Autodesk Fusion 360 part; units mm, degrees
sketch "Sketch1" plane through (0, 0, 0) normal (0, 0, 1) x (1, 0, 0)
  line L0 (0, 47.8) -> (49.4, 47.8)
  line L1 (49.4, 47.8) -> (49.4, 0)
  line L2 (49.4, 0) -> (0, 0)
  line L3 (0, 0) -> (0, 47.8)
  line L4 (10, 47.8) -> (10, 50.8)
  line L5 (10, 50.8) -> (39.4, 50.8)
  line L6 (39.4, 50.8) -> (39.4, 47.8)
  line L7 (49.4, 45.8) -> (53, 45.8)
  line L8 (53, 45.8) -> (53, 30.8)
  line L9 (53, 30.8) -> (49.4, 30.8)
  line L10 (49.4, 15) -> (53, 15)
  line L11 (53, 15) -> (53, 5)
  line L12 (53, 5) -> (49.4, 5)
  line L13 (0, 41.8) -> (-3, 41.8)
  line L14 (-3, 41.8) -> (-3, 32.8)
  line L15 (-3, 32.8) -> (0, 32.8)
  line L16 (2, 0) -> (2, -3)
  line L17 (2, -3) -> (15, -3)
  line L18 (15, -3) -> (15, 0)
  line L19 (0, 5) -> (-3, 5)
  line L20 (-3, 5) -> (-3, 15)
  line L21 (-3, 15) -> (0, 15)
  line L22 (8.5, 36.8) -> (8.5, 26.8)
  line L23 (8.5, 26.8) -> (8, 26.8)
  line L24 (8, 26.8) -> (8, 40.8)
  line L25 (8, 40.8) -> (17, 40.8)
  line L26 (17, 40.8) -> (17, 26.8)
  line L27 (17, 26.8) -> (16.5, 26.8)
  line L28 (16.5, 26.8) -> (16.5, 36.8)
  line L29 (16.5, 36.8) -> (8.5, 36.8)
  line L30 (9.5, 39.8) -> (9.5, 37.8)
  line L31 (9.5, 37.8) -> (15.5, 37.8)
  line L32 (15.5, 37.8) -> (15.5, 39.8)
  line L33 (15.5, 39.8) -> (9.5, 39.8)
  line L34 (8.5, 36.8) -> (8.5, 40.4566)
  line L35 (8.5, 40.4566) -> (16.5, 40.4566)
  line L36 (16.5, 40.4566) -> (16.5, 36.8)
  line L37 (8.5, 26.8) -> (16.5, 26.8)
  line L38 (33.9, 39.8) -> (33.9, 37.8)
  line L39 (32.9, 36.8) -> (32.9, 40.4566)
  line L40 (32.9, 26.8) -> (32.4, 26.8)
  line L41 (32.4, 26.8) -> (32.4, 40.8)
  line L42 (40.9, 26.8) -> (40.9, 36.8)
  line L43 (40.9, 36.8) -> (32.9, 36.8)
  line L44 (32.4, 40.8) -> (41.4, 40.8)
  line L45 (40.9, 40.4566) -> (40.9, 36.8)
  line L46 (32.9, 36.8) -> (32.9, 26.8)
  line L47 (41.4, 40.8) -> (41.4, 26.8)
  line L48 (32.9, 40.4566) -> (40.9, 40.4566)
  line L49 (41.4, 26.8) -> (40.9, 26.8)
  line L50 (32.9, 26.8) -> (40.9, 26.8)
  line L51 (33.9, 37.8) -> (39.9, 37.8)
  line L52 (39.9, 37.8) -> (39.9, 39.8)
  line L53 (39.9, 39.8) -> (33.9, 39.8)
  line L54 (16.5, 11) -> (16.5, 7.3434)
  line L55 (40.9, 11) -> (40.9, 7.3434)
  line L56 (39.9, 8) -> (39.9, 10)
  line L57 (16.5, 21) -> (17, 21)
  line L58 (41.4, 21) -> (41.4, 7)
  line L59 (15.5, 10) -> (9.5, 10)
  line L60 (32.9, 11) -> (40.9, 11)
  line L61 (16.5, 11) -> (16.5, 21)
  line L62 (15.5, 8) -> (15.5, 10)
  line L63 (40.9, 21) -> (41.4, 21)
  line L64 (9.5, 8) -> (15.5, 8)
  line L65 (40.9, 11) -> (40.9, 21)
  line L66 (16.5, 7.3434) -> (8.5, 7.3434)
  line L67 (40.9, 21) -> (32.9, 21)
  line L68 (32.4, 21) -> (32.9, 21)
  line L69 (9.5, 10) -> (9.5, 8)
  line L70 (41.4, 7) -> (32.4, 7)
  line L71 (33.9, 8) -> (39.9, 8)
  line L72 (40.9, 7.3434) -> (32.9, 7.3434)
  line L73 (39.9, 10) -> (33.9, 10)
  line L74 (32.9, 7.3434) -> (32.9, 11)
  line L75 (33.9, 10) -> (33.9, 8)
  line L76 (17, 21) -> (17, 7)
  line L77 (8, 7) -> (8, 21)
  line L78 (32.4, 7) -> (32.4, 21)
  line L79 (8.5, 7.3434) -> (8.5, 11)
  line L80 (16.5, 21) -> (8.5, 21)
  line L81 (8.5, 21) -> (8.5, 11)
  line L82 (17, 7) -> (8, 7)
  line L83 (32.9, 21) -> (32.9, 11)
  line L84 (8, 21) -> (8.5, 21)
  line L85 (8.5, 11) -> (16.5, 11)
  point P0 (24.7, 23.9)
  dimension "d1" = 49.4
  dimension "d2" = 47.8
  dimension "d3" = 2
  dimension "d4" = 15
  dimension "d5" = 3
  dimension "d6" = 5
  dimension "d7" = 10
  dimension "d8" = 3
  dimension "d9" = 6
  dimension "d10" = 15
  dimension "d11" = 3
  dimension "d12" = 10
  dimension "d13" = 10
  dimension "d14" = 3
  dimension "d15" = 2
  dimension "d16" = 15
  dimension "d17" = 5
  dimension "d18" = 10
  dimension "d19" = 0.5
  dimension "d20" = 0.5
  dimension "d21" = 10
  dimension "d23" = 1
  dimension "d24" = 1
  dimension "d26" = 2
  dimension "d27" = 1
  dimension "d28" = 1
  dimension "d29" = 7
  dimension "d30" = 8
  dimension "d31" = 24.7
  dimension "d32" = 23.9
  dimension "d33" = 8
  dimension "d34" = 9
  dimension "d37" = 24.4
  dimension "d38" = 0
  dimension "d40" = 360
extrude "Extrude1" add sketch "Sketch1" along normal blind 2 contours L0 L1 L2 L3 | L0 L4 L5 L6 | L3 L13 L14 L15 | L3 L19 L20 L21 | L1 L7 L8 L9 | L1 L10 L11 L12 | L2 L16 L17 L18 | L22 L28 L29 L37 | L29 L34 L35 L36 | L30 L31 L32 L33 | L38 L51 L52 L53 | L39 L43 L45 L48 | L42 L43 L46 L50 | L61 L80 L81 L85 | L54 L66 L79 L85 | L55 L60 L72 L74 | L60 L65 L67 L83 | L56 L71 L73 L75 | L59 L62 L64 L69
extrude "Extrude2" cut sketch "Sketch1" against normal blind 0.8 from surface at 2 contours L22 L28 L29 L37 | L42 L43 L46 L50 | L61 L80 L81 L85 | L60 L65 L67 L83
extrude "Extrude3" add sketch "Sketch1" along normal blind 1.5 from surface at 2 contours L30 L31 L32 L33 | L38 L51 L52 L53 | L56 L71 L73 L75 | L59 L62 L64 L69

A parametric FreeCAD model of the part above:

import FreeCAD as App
import Part
import Sketcher

V = App.Vector

doc = App.newDocument("Part")
body = doc.addObject("PartDesign::Body", "Body")

# Sketch on XY plane
sketch1 = body.newObject("Sketcher::SketchObject", "Sketch")
sketch1.AttachmentSupport = (doc.getObject("XY_Plane"), [""])
sketch1.MapMode = "FlatFace"
sketch1.addGeometry([
    Part.LineSegment(V(10, 47.8, 0), V(0, 47.8, 0)),  # 0
    Part.LineSegment(V(0, 47.8, 0), V(0, 41.8, 0)),  # 1
    Part.LineSegment(V(0, 41.8, 0), V(-3, 41.8, 0)),  # 2
    Part.LineSegment(V(-3, 41.8, 0), V(-3, 32.8, 0)),  # 3
    Part.LineSegment(V(-3, 32.8, 0), V(0, 32.8, 0)),  # 4
    Part.LineSegment(V(0, 32.8, 0), V(0, 15, 0)),  # 5
    Part.LineSegment(V(0, 15, 0), V(-3, 15, 0)),  # 6
    Part.LineSegment(V(-3, 15, 0), V(-3, 5, 0)),  # 7
    Part.LineSegment(V(-3, 5, 0), V(0, 5, 0)),  # 8
    Part.LineSegment(V(0, 5, 0), V(0, 0, 0)),  # 9
    Part.LineSegment(V(0, 0, 0), V(2, 0, 0)),  # 10
    Part.LineSegment(V(2, 0, 0), V(2, -3, 0)),  # 11
    Part.LineSegment(V(2, -3, 0), V(15, -3, 0)),  # 12
    Part.LineSegment(V(15, -3, 0), V(15, 0, 0)),  # 13
    Part.LineSegment(V(15, 0, 0), V(49.4, 0, 0)),  # 14
    Part.LineSegment(V(49.4, 0, 0), V(49.4, 5, 0)),  # 15
    Part.LineSegment(V(49.4, 5, 0), V(53, 5, 0)),  # 16
    Part.LineSegment(V(53, 5, 0), V(53, 15, 0)),  # 17
    Part.LineSegment(V(53, 15, 0), V(49.4, 15, 0)),  # 18
    Part.LineSegment(V(49.4, 15, 0), V(49.4, 30.8, 0)),  # 19
    Part.LineSegment(V(49.4, 30.8, 0), V(53, 30.8, 0)),  # 20
    Part.LineSegment(V(53, 30.8, 0), V(53, 45.8, 0)),  # 21
    Part.LineSegment(V(53, 45.8, 0), V(49.4, 45.8, 0)),  # 22
    Part.LineSegment(V(49.4, 45.8, 0), V(49.4, 47.8, 0)),  # 23
    Part.LineSegment(V(49.4, 47.8, 0), V(39.4, 47.8, 0)),  # 24
    Part.LineSegment(V(39.4, 47.8, 0), V(39.4, 50.8, 0)),  # 25
    Part.LineSegment(V(39.4, 50.8, 0), V(10, 50.8, 0)),  # 26
    Part.LineSegment(V(10, 50.8, 0), V(10, 47.8, 0)),  # 27
    Part.LineSegment(V(8, 21, 0), V(8.5, 21, 0)),  # 28
    Part.LineSegment(V(8.5, 21, 0), V(8.5, 7.3, 0)),  # 29
    Part.LineSegment(V(8.5, 7.3, 0), V(16.5, 7.3, 0)),  # 30
    Part.LineSegment(V(16.5, 7.3, 0), V(16.5, 21, 0)),  # 31
    Part.LineSegment(V(16.5, 21, 0), V(17, 21, 0)),  # 32
    Part.LineSegment(V(17, 21, 0), V(17, 7, 0)),  # 33
    Part.LineSegment(V(17, 7, 0), V(8, 7, 0)),  # 34
    Part.LineSegment(V(8, 7, 0), V(8, 21, 0)),  # 35
    Part.LineSegment(V(32.4, 21, 0), V(32.9, 21, 0)),  # 36
    Part.LineSegment(V(32.9, 21, 0), V(32.9, 7.3, 0)),  # 37
    Part.LineSegment(V(32.9, 7.3, 0), V(40.9, 7.3, 0)),  # 38
    Part.LineSegment(V(40.9, 7.3, 0), V(40.9, 21, 0)),  # 39
    Part.LineSegment(V(40.9, 21, 0), V(41.4, 21, 0)),  # 40
    Part.LineSegment(V(41.4, 21, 0), V(41.4, 7, 0)),  # 41
    Part.LineSegment(V(41.4, 7, 0), V(32.4, 7, 0)),  # 42
    Part.LineSegment(V(32.4, 7, 0), V(32.4, 21, 0)),  # 43
    Part.LineSegment(V(17, 26.8, 0), V(16.5, 26.8, 0)),  # 44
    Part.LineSegment(V(16.5, 26.8, 0), V(16.5, 40.5, 0)),  # 45
    Part.LineSegment(V(16.5, 40.5, 0), V(8.5, 40.5, 0)),  # 46
    Part.LineSegment(V(8.5, 40.5, 0), V(8.5, 26.8, 0)),  # 47
    Part.LineSegment(V(8.5, 26.8, 0), V(8, 26.8, 0)),  # 48
    Part.LineSegment(V(8, 26.8, 0), V(8, 40.8, 0)),  # 49
    Part.LineSegment(V(8, 40.8, 0), V(17, 40.8, 0)),  # 50
    Part.LineSegment(V(17, 40.8, 0), V(17, 26.8, 0)),  # 51
    Part.LineSegment(V(41.4, 26.8, 0), V(40.9, 26.8, 0)),  # 52
    Part.LineSegment(V(40.9, 26.8, 0), V(40.9, 40.5, 0)),  # 53
    Part.LineSegment(V(40.9, 40.5, 0), V(32.9, 40.5, 0)),  # 54
    Part.LineSegment(V(32.9, 40.5, 0), V(32.9, 26.8, 0)),  # 55
    Part.LineSegment(V(32.9, 26.8, 0), V(32.4, 26.8, 0)),  # 56
    Part.LineSegment(V(32.4, 26.8, 0), V(32.4, 40.8, 0)),  # 57
    Part.LineSegment(V(32.4, 40.8, 0), V(41.4, 40.8, 0)),  # 58
    Part.LineSegment(V(41.4, 40.8, 0), V(41.4, 26.8, 0)),  # 59
], False)
sketch1.addConstraint([
    Sketcher.Constraint("Coincident", 0, 2, 1, 1),
    Sketcher.Constraint("Coincident", 1, 2, 2, 1),
    Sketcher.Constraint("Coincident", 2, 2, 3, 1),
    Sketcher.Constraint("Coincident", 3, 2, 4, 1),
    Sketcher.Constraint("Coincident", 4, 2, 5, 1),
    Sketcher.Constraint("Coincident", 5, 2, 6, 1),
    Sketcher.Constraint("Coincident", 6, 2, 7, 1),
    Sketcher.Constraint("Coincident", 7, 2, 8, 1),
    Sketcher.Constraint("Coincident", 8, 2, 9, 1),
    Sketcher.Constraint("Coincident", 9, 2, 10, 1),
    Sketcher.Constraint("Coincident", 10, 2, 11, 1),
    Sketcher.Constraint("Coincident", 11, 2, 12, 1),
    Sketcher.Constraint("Coincident", 12, 2, 13, 1),
    Sketcher.Constraint("Coincident", 13, 2, 14, 1),
    Sketcher.Constraint("Coincident", 14, 2, 15, 1),
    Sketcher.Constraint("Coincident", 15, 2, 16, 1),
    Sketcher.Constraint("Coincident", 16, 2, 17, 1),
    Sketcher.Constraint("Coincident", 17, 2, 18, 1),
    Sketcher.Constraint("Coincident", 18, 2, 19, 1),
    Sketcher.Constraint("Coincident", 19, 2, 20, 1),
    Sketcher.Constraint("Coincident", 20, 2, 21, 1),
    Sketcher.Constraint("Coincident", 21, 2, 22, 1),
    Sketcher.Constraint("Coincident", 22, 2, 23, 1),
    Sketcher.Constraint("Coincident", 23, 2, 24, 1),
    Sketcher.Constraint("Coincident", 24, 2, 25, 1),
    Sketcher.Constraint("Coincident", 25, 2, 26, 1),
    Sketcher.Constraint("Coincident", 26, 2, 27, 1),
    Sketcher.Constraint("Coincident", 27, 2, 0, 1),
    Sketcher.Constraint("Coincident", 28, 2, 29, 1),
    Sketcher.Constraint("Coincident", 29, 2, 30, 1),
    Sketcher.Constraint("Coincident", 30, 2, 31, 1),
    Sketcher.Constraint("Coincident", 31, 2, 32, 1),
    Sketcher.Constraint("Coincident", 32, 2, 33, 1),
    Sketcher.Constraint("Coincident", 33, 2, 34, 1),
    Sketcher.Constraint("Coincident", 34, 2, 35, 1),
    Sketcher.Constraint("Coincident", 35, 2, 28, 1),
    Sketcher.Constraint("Coincident", 36, 2, 37, 1),
    Sketcher.Constraint("Coincident", 37, 2, 38, 1),
    Sketcher.Constraint("Coincident", 38, 2, 39, 1),
    Sketcher.Constraint("Coincident", 39, 2, 40, 1),
    Sketcher.Constraint("Coincident", 40, 2, 41, 1),
    Sketcher.Constraint("Coincident", 41, 2, 42, 1),
    Sketcher.Constraint("Coincident", 42, 2, 43, 1),
    Sketcher.Constraint("Coincident", 43, 2, 36, 1),
    Sketcher.Constraint("Coincident", 44, 2, 45, 1),
    Sketcher.Constraint("Coincident", 45, 2, 46, 1),
    Sketcher.Constraint("Coincident", 46, 2, 47, 1),
    Sketcher.Constraint("Coincident", 47, 2, 48, 1),
    Sketcher.Constraint("Coincident", 48, 2, 49, 1),
    Sketcher.Constraint("Coincident", 49, 2, 50, 1),
    Sketcher.Constraint("Coincident", 50, 2, 51, 1),
    Sketcher.Constraint("Coincident", 51, 2, 44, 1),
    Sketcher.Constraint("Coincident", 52, 2, 53, 1),
    Sketcher.Constraint("Coincident", 53, 2, 54, 1),
    Sketcher.Constraint("Coincident", 54, 2, 55, 1),
    Sketcher.Constraint("Coincident", 55, 2, 56, 1),
    Sketcher.Constraint("Coincident", 56, 2, 57, 1),
    Sketcher.Constraint("Coincident", 57, 2, 58, 1),
    Sketcher.Constraint("Coincident", 58, 2, 59, 1),
    Sketcher.Constraint("Coincident", 59, 2, 52, 1),
    Sketcher.Constraint("Horizontal", 0),
    Sketcher.Constraint("Vertical", 1),
    Sketcher.Constraint("Horizontal", 2),
    Sketcher.Constraint("Vertical", 3),
    Sketcher.Constraint("Horizontal", 4),
    Sketcher.Constraint("Vertical", 5),
    Sketcher.Constraint("Horizontal", 6),
    Sketcher.Constraint("Vertical", 7),
    Sketcher.Constraint("Horizontal", 8),
    Sketcher.Constraint("Vertical", 9),
    Sketcher.Constraint("Horizontal", 10),
    Sketcher.Constraint("Vertical", 11),
    Sketcher.Constraint("Horizontal", 12),
    Sketcher.Constraint("Vertical", 13),
    Sketcher.Constraint("Horizontal", 14),
    Sketcher.Constraint("Vertical", 15),
    Sketcher.Constraint("Horizontal", 16),
    Sketcher.Constraint("Vertical", 17),
    Sketcher.Constraint("Horizontal", 18),
    Sketcher.Constraint("Vertical", 19),
    Sketcher.Constraint("Horizontal", 20),
    Sketcher.Constraint("Vertical", 21),
    Sketcher.Constraint("Horizontal", 22),
    Sketcher.Constraint("Vertical", 23),
    Sketcher.Constraint("Horizontal", 24),
    Sketcher.Constraint("Vertical", 25),
    Sketcher.Constraint("Horizontal", 26),
    Sketcher.Constraint("Vertical", 27),
    Sketcher.Constraint("Horizontal", 28),
    Sketcher.Constraint("Vertical", 29),
    Sketcher.Constraint("Horizontal", 30),
    Sketcher.Constraint("Vertical", 31),
    Sketcher.Constraint("Horizontal", 32),
    Sketcher.Constraint("Vertical", 33),
    Sketcher.Constraint("Horizontal", 34),
    Sketcher.Constraint("Vertical", 35),
    Sketcher.Constraint("Horizontal", 36),
    Sketcher.Constraint("Vertical", 37),
    Sketcher.Constraint("Horizontal", 38),
    Sketcher.Constraint("Vertical", 39),
    Sketcher.Constraint("Horizontal", 40),
    Sketcher.Constraint("Vertical", 41),
    Sketcher.Constraint("Horizontal", 42),
    Sketcher.Constraint("Vertical", 43),
    Sketcher.Constraint("Horizontal", 44),
    Sketcher.Constraint("Vertical", 45),
    Sketcher.Constraint("Horizontal", 46),
    Sketcher.Constraint("Vertical", 47),
    Sketcher.Constraint("Horizontal", 48),
    Sketcher.Constraint("Vertical", 49),
    Sketcher.Constraint("Horizontal", 50),
    Sketcher.Constraint("Vertical", 51),
    Sketcher.Constraint("Horizontal", 52),
    Sketcher.Constraint("Vertical", 53),
    Sketcher.Constraint("Horizontal", 54),
    Sketcher.Constraint("Vertical", 55),
    Sketcher.Constraint("Horizontal", 56),
    Sketcher.Constraint("Vertical", 57),
    Sketcher.Constraint("Horizontal", 58),
    Sketcher.Constraint("Vertical", 59),
    Sketcher.Constraint("Coincident", 9, 2, -1, 1),
    Sketcher.Constraint("PointOnObject", 0, 2, -2),
    Sketcher.Constraint("PointOnObject", 4, 2, -2),
    Sketcher.Constraint("PointOnObject", 13, 2, -1),
    Sketcher.Constraint("Horizontal", 8, 2, 15, 2),
    Sketcher.Constraint("Horizontal", 6, 2, 17, 2),
    Sketcher.Constraint("Horizontal", 0, 2, 23, 2),
    Sketcher.Constraint("Horizontal", 28, 2, 31, 2),
    Sketcher.Constraint("Horizontal", 35, 2, 36, 2),
    Sketcher.Constraint("Horizontal", 30, 2, 37, 2),
    Sketcher.Constraint("Horizontal", 36, 2, 39, 2),
    Sketcher.Constraint("Horizontal", 34, 2, 41, 2),
    Sketcher.Constraint("Horizontal", 44, 2, 47, 2),
    Sketcher.Constraint("Horizontal", 51, 2, 52, 2),
    Sketcher.Constraint("Horizontal", 46, 2, 53, 2),
    Sketcher.Constraint("Horizontal", 52, 2, 55, 2),
    Sketcher.Constraint("Horizontal", 50, 2, 57, 2),
    Sketcher.Constraint("Vertical", 3, 2, 6, 2),
    Sketcher.Constraint("Vertical", 15, 2, 18, 2),
    Sketcher.Constraint("Vertical", 17, 2, 20, 2),
    Sketcher.Constraint("Vertical", 19, 2, 22, 2),
    Sketcher.Constraint("Vertical", 31, 2, 44, 2),
    Sketcher.Constraint("Vertical", 29, 2, 46, 2),
    Sketcher.Constraint("Vertical", 35, 2, 48, 2),
    Sketcher.Constraint("Vertical", 33, 2, 50, 2),
    Sketcher.Constraint("Vertical", 39, 2, 52, 2),
    Sketcher.Constraint("Vertical", 37, 2, 54, 2),
    Sketcher.Constraint("Vertical", 43, 2, 56, 2),
    Sketcher.Constraint("Vertical", 41, 2, 58, 2),
    Sketcher.Constraint("Equal", 0, 24),
    Sketcher.Constraint("Equal", 28, 32),
    Sketcher.Constraint("Equal", 32, 36),
    Sketcher.Constraint("Equal", 30, 38),
    Sketcher.Constraint("Equal", 36, 40),
    Sketcher.Constraint("Equal", 58, 3),
    Sketcher.Constraint("Equal", 24, 7),
    Sketcher.Constraint("Equal", 8, 11),
    Sketcher.Constraint("Equal", 10, 23),
    Sketcher.Constraint("Equal", 13, 25),
    Sketcher.Constraint("Equal", 39, 45),
    Sketcher.Constraint("Equal", 43, 49),
    Sketcher.Constraint("DistanceX", 0, 2, 0, 1, 10.0),
    Sketcher.Constraint("DistanceX", 2, 2, 2, 1, 3.0),
    Sketcher.Constraint("DistanceX", 10, 1, 10, 2, 2.0),
    Sketcher.Constraint("DistanceX", 30, 1, 30, 2, 8.0),
    Sketcher.Constraint("DistanceX", 34, 2, 34, 1, 9.0),
    Sketcher.Constraint("DistanceY", 1, 2, 1, 1, 6.0),
    Sketcher.Constraint("DistanceY", 9, 2, 9, 1, 5.0),
    Sketcher.Constraint("DistanceY", 21, 1, 21, 2, 15.0),
    Sketcher.Constraint("DistanceX", -1, 1, 12, 2, 15.0),
    Sketcher.Constraint("DistanceY", -1, 1, 33, 2, 7.0),
    Sketcher.Constraint("DistanceX", -1, 1, 34, 2, 8.0),
    Sketcher.Constraint("DistanceY", 5, 2, 28, 2, 6.0),
    Sketcher.Constraint("DistanceX", 40, 2, 18, 2, 8.0),
    Sketcher.Constraint("DistanceY", 48, 2, 4, 2, 6.0),
    Sketcher.Constraint("DistanceY", -1, 1, 0, 2, 47.8),
    Sketcher.Constraint("DistanceX", -1, 1, 14, 2, 49.4),
    Sketcher.Constraint("DistanceX", 16, 1, 16, 2, 3.6),
    Sketcher.Constraint("DistanceY", 29, 2, 29, 1, 13.6566),
])
pad1 = body.newObject("PartDesign::Pad", "Pad")
pad1.Profile = sketch1
pad1.Length = 2

# Sketch on XY plane
sketch2 = body.newObject("Sketcher::SketchObject", "Sketch001")
sketch2.AttachmentSupport = (doc.getObject("XY_Plane"), [""])
sketch2.MapMode = "FlatFace"
sketch2.AttachmentOffset = App.Placement(V(0, 0, 2), App.Rotation())
sketch2.addGeometry([
    Part.LineSegment(V(16, 37, 0), V(8, 37, 0)),  # 0
    Part.LineSegment(V(8, 37, 0), V(8, 27, 0)),  # 1
    Part.LineSegment(V(8, 27, 0), V(16, 27, 0)),  # 2
    Part.LineSegment(V(16, 27, 0), V(16, 37, 0)),  # 3
    Part.LineSegment(V(41, 37, 0), V(33, 37, 0)),  # 4
    Part.LineSegment(V(33, 37, 0), V(33, 27, 0)),  # 5
    Part.LineSegment(V(33, 27, 0), V(41, 27, 0)),  # 6
    Part.LineSegment(V(41, 27, 0), V(41, 37, 0)),  # 7
    Part.LineSegment(V(8, 11, 0), V(16, 11, 0)),  # 8
    Part.LineSegment(V(16, 11, 0), V(16, 21, 0)),  # 9
    Part.LineSegment(V(16, 21, 0), V(8, 21, 0)),  # 10
    Part.LineSegment(V(8, 21, 0), V(8, 11, 0)),  # 11
    Part.LineSegment(V(33, 11, 0), V(41, 11, 0)),  # 12
    Part.LineSegment(V(41, 11, 0), V(41, 21, 0)),  # 13
    Part.LineSegment(V(41, 21, 0), V(33, 21, 0)),  # 14
    Part.LineSegment(V(33, 21, 0), V(33, 11, 0)),  # 15
], False)
sketch2.addConstraint([
    Sketcher.Constraint("Coincident", 0, 2, 1, 1),
    Sketcher.Constraint("Coincident", 1, 2, 2, 1),
    Sketcher.Constraint("Coincident", 2, 2, 3, 1),
    Sketcher.Constraint("Coincident", 3, 2, 0, 1),
    Sketcher.Constraint("Coincident", 4, 2, 5, 1),
    Sketcher.Constraint("Coincident", 5, 2, 6, 1),
    Sketcher.Constraint("Coincident", 6, 2, 7, 1),
    Sketcher.Constraint("Coincident", 7, 2, 4, 1),
    Sketcher.Constraint("Coincident", 8, 2, 9, 1),
    Sketcher.Constraint("Coincident", 9, 2, 10, 1),
    Sketcher.Constraint("Coincident", 10, 2, 11, 1),
    Sketcher.Constraint("Coincident", 11, 2, 8, 1),
    Sketcher.Constraint("Coincident", 12, 2, 13, 1),
    Sketcher.Constraint("Coincident", 13, 2, 14, 1),
    Sketcher.Constraint("Coincident", 14, 2, 15, 1),
    Sketcher.Constraint("Coincident", 15, 2, 12, 1),
    Sketcher.Constraint("Horizontal", 0),
    Sketcher.Constraint("Vertical", 1),
    Sketcher.Constraint("Horizontal", 2),
    Sketcher.Constraint("Vertical", 3),
    Sketcher.Constraint("Horizontal", 4),
    Sketcher.Constraint("Vertical", 5),
    Sketcher.Constraint("Horizontal", 6),
    Sketcher.Constraint("Vertical", 7),
    Sketcher.Constraint("Horizontal", 8),
    Sketcher.Constraint("Vertical", 9),
    Sketcher.Constraint("Horizontal", 10),
    Sketcher.Constraint("Vertical", 11),
    Sketcher.Constraint("Horizontal", 12),
    Sketcher.Constraint("Vertical", 13),
    Sketcher.Constraint("Horizontal", 14),
    Sketcher.Constraint("Vertical", 15),
    Sketcher.Constraint("Horizontal", 3, 2, 4, 2),
    Sketcher.Constraint("Horizontal", 2, 2, 5, 2),
    Sketcher.Constraint("Horizontal", 11, 2, 12, 2),
    Sketcher.Constraint("Horizontal", 10, 2, 13, 2),
    Sketcher.Constraint("Vertical", 3, 2, 8, 2),
    Sketcher.Constraint("Vertical", 1, 2, 10, 2),
    Sketcher.Constraint("Vertical", 7, 2, 12, 2),
    Sketcher.Constraint("Vertical", 5, 2, 14, 2),
    Sketcher.Constraint("Equal", 2, 4),
    Sketcher.Constraint("Equal", 7, 9),
    Sketcher.Constraint("DistanceX", 0, 2, 0, 1, 8.0),
    Sketcher.Constraint("DistanceY", 1, 2, 1, 1, 10.0),
    Sketcher.Constraint("DistanceX", 0, 2, 4, 2, 24.4),
    Sketcher.Constraint("DistanceY", -1, 1, 8, 2, 11.0),
    Sketcher.Constraint("DistanceX", -1, 1, 0, 2, 8.5),
    Sketcher.Constraint("DistanceY", -1, 1, 0, 2, 36.8),
])
pocket1 = body.newObject("PartDesign::Pocket", "Pocket")
pocket1.Profile = sketch2
pocket1.Length = 0.8

# Sketch on XY plane
sketch3 = body.newObject("Sketcher::SketchObject", "Sketch002")
sketch3.AttachmentSupport = (doc.getObject("XY_Plane"), [""])
sketch3.MapMode = "FlatFace"
sketch3.AttachmentOffset = App.Placement(V(0, 0, 2), App.Rotation())
sketch3.addGeometry([
    Part.LineSegment(V(15.5, 39.8, 0), V(9.5, 39.8, 0)),  # 0
    Part.LineSegment(V(9.5, 39.8, 0), V(9.5, 37.8, 0)),  # 1
    Part.LineSegment(V(9.5, 37.8, 0), V(15.5, 37.8, 0)),  # 2
    Part.LineSegment(V(15.5, 37.8, 0), V(15.5, 39.8, 0)),  # 3
    Part.LineSegment(V(39.9, 39.8, 0), V(33.9, 39.8, 0)),  # 4
    Part.LineSegment(V(33.9, 39.8, 0), V(33.9, 37.8, 0)),  # 5
    Part.LineSegment(V(33.9, 37.8, 0), V(39.9, 37.8, 0)),  # 6
    Part.LineSegment(V(39.9, 37.8, 0), V(39.9, 39.8, 0)),  # 7
    Part.LineSegment(V(33.9, 8, 0), V(39.9, 8, 0)),  # 8
    Part.LineSegment(V(39.9, 8, 0), V(39.9, 10, 0)),  # 9
    Part.LineSegment(V(39.9, 10, 0), V(33.9, 10, 0)),  # 10
    Part.LineSegment(V(33.9, 10, 0), V(33.9, 8, 0)),  # 11
    Part.LineSegment(V(15.5, 8, 0), V(15.5, 10, 0)),  # 12
    Part.LineSegment(V(15.5, 10, 0), V(9.5, 10, 0)),  # 13
    Part.LineSegment(V(9.5, 10, 0), V(9.5, 8, 0)),  # 14
    Part.LineSegment(V(9.5, 8, 0), V(15.5, 8, 0)),  # 15
], False)
sketch3.addConstraint([
    Sketcher.Constraint("Coincident", 0, 2, 1, 1),
    Sketcher.Constraint("Coincident", 1, 2, 2, 1),
    Sketcher.Constraint("Coincident", 2, 2, 3, 1),
    Sketcher.Constraint("Coincident", 3, 2, 0, 1),
    Sketcher.Constraint("Coincident", 4, 2, 5, 1),
    Sketcher.Constraint("Coincident", 5, 2, 6, 1),
    Sketcher.Constraint("Coincident", 6, 2, 7, 1),
    Sketcher.Constraint("Coincident", 7, 2, 4, 1),
    Sketcher.Constraint("Coincident", 8, 2, 9, 1),
    Sketcher.Constraint("Coincident", 9, 2, 10, 1),
    Sketcher.Constraint("Coincident", 10, 2, 11, 1),
    Sketcher.Constraint("Coincident", 11, 2, 8, 1),
    Sketcher.Constraint("Coincident", 12, 2, 13, 1),
    Sketcher.Constraint("Coincident", 13, 2, 14, 1),
    Sketcher.Constraint("Coincident", 14, 2, 15, 1),
    Sketcher.Constraint("Coincident", 15, 2, 12, 1),
    Sketcher.Constraint("Horizontal", 0),
    Sketcher.Constraint("Vertical", 1),
    Sketcher.Constraint("Horizontal", 2),
    Sketcher.Constraint("Vertical", 3),
    Sketcher.Constraint("Horizontal", 4),
    Sketcher.Constraint("Vertical", 5),
    Sketcher.Constraint("Horizontal", 6),
    Sketcher.Constraint("Vertical", 7),
    Sketcher.Constraint("Horizontal", 8),
    Sketcher.Constraint("Vertical", 9),
    Sketcher.Constraint("Horizontal", 10),
    Sketcher.Constraint("Vertical", 11),
    Sketcher.Constraint("Vertical", 12),
    Sketcher.Constraint("Horizontal", 13),
    Sketcher.Constraint("Vertical", 14),
    Sketcher.Constraint("Horizontal", 15),
    Sketcher.Constraint("Horizontal", 3, 2, 4, 2),
    Sketcher.Constraint("Horizontal", 2, 2, 5, 2),
    Sketcher.Constraint("Horizontal", 10, 2, 12, 2),
    Sketcher.Constraint("Horizontal", 11, 2, 14, 2),
    Sketcher.Constraint("Vertical", 7, 2, 8, 2),
    Sketcher.Constraint("Vertical", 5, 2, 10, 2),
    Sketcher.Constraint("Vertical", 3, 2, 12, 2),
    Sketcher.Constraint("Vertical", 1, 2, 13, 2),
    Sketcher.Constraint("Equal", 2, 4),
    Sketcher.Constraint("Equal", 7, 9),
    Sketcher.Constraint("DistanceX", 0, 2, 0, 1, 6.0),
    Sketcher.Constraint("DistanceY", 1, 2, 1, 1, 2.0),
    Sketcher.Constraint("DistanceY", -1, 1, 8, 2, 8.0),
    Sketcher.Constraint("DistanceX", 0, 2, 4, 2, 24.4),
    Sketcher.Constraint("DistanceX", -1, 1, 0, 2, 9.5),
    Sketcher.Constraint("DistanceY", -1, 1, 0, 2, 39.8),
])
pad2 = body.newObject("PartDesign::Pad", "Pad001")
pad2.Profile = sketch3
pad2.Length = 1.5

doc.recompute()
